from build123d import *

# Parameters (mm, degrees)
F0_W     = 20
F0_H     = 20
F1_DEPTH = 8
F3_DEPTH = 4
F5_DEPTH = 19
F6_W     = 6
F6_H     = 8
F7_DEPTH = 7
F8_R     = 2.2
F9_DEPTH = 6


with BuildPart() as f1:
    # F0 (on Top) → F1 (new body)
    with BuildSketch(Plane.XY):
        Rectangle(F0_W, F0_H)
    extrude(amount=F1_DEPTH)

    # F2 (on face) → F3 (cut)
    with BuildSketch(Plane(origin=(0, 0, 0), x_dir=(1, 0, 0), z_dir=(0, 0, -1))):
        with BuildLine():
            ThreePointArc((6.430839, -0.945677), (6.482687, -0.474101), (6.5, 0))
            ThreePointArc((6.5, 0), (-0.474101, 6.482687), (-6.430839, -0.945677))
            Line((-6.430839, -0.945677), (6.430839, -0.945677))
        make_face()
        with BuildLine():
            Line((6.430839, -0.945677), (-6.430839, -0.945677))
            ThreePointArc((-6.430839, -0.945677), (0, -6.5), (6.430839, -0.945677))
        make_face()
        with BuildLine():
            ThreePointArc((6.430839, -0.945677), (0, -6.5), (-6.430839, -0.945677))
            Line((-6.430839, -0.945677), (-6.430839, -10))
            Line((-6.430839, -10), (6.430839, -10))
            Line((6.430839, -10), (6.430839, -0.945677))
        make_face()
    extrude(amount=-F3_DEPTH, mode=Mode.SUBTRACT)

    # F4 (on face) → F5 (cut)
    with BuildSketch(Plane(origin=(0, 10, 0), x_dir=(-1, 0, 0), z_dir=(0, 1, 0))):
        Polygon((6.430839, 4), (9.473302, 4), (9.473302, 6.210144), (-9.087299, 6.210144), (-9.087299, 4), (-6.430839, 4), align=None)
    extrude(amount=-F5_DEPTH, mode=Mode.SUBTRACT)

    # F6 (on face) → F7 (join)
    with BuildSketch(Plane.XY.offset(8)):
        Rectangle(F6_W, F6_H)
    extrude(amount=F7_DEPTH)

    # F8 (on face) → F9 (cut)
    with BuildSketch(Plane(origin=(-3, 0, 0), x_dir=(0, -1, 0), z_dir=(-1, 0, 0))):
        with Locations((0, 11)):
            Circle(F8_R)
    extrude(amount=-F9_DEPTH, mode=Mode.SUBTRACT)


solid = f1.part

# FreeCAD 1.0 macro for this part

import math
import FreeCAD as App
import Part
import Sketcher

V = App.Vector


def add_polygon(sketch, points):
    """Adds a closed chain of lines whose ends are joined by coincident constraints."""
    first, n = sketch.GeometryCount, len(points)
    for a, b in zip(points, points[1:] + points[:1]):
        sketch.addGeometry(Part.LineSegment(App.Vector(*a, 0), App.Vector(*b, 0)), False)
    for i in range(n):
        sketch.addConstraint(Sketcher.Constraint("Coincident", first + i, 2, first + (i + 1) % n, 1))

doc = App.newDocument("Part")
body = doc.addObject("PartDesign::Body", "Body")

# Sketch on XY plane
sketch1 = body.newObject("Sketcher::SketchObject", "Sketch")
sketch1.AttachmentSupport = (doc.getObject("XY_Plane"), [""])
sketch1.MapMode = "FlatFace"
add_polygon(sketch1, [(-10, 10), (-10, -10), (10, -10), (10, 10)])  # lines 0-3
sketch1.addConstraint([
    Sketcher.Constraint("Vertical", 0),
    Sketcher.Constraint("Horizontal", 1),
    Sketcher.Constraint("Vertical", 2),
    Sketcher.Constraint("Horizontal", 3),
    Sketcher.Constraint("Symmetric", 0, 2, 2, 2, -1, 1),
    Sketcher.Constraint("Equal", 3, 0),
    Sketcher.Constraint("DistanceX", 1, 1, 1, 2, 20.0),
])
pad1 = body.newObject("PartDesign::Pad", "Pad")
pad1.Profile = sketch1
pad1.Length = 8

# Sketch on XY plane
sketch2 = body.newObject("Sketcher::SketchObject", "Sketch001")
sketch2.AttachmentSupport = (doc.getObject("XY_Plane"), [""])
sketch2.MapMode = "FlatFace"
sketch2.addGeometry([
    Part.ArcOfCircle(Part.Circle(V(0.000141, 0.000008, 0), V(0, 0, 1), 6.499859), math.radians(-0.000069), math.radians(8.365697)),  # 0
    Part.ArcOfCircle(Part.Circle(V(0, 0, 0), V(0, 0, 1), 6.5), math.radians(171.634413), math.radians(360.000003)),  # 1
    Part.LineSegment(V(-6.430839, 0.945677, 0), V(-6.430839, 10, 0)),  # 2
    Part.LineSegment(V(-6.430839, 10, 0), V(6.430839, 10, 0)),  # 3
    Part.LineSegment(V(6.430839, 10, 0), V(6.430839, 0.945677, 0)),  # 4
], False)
sketch2.addConstraint([
    Sketcher.Constraint("Coincident", 0, 1, 1, 2),
    Sketcher.Constraint("Coincident", 1, 1, 2, 1),
    Sketcher.Constraint("Coincident", 2, 2, 3, 1),
    Sketcher.Constraint("Coincident", 3, 2, 4, 1),
    Sketcher.Constraint("Coincident", 4, 2, 0, 2),
    Sketcher.Constraint("Vertical", 2),
    Sketcher.Constraint("Horizontal", 3),
    Sketcher.Constraint("Vertical", 4),
    Sketcher.Constraint("Coincident", 1, 3, -1, 1),
    Sketcher.Constraint("PointOnObject", 0, 1, -1),
    Sketcher.Constraint("Radius", 1, 6.5),
    Sketcher.Constraint("DistanceY", -1, 1, 2, 2, 10.0),
    Sketcher.Constraint("Radius", 0, 6.499859),
    Sketcher.Constraint("DistanceX", 0, 3, 3, 2, 6.430698),
    Sketcher.Constraint("DistanceX", 3, 1, 3, 2, 12.861678),
    Sketcher.Constraint("DistanceY", 4, 2, 4, 1, 9.054323),
])
pocket1 = body.newObject("PartDesign::Pocket", "Pocket")
pocket1.Profile = sketch2
pocket1.Length = 4
pocket1.Reversed = True

# Sketch on XZ plane
sketch3 = body.newObject("Sketcher::SketchObject", "Sketch002")
sketch3.AttachmentSupport = (doc.getObject("XZ_Plane"), [""])
sketch3.MapMode = "FlatFace"
sketch3.AttachmentOffset = App.Placement(V(0, 0, -10), App.Rotation())
add_polygon(sketch3, [(-9.5, 4), (-9.5, 6.2), (9.1, 6.2), (9.1, 4)])  # lines 0-3
sketch3.addConstraint([
    Sketcher.Constraint("Vertical", 0),
    Sketcher.Constraint("Horizontal", 1),
    Sketcher.Constraint("Vertical", 2),
    Sketcher.Constraint("Horizontal", 3),
    Sketcher.Constraint("DistanceY", -1, 1, 2, 2, 4.0),
    Sketcher.Constraint("DistanceX", 1, 1, 1, 2, 18.560601),
    Sketcher.Constraint("DistanceX", -1, 1, 1, 2, 9.087299),
    Sketcher.Constraint("DistanceY", 0, 1, 0, 2, 2.210144),
])
pocket2 = body.newObject("PartDesign::Pocket", "Pocket001")
pocket2.Profile = sketch3
pocket2.Length = 19
pocket2.Reversed = True

# Sketch on XY plane
sketch4 = body.newObject("Sketcher::SketchObject", "Sketch003")
sketch4.AttachmentSupport = (doc.getObject("XY_Plane"), [""])
sketch4.MapMode = "FlatFace"
sketch4.AttachmentOffset = App.Placement(V(0, 0, 8), App.Rotation())
add_polygon(sketch4, [(-3, 4), (-3, -4), (3, -4), (3, 4)])  # lines 0-3
sketch4.addConstraint([
    Sketcher.Constraint("Vertical", 0),
    Sketcher.Constraint("Horizontal", 1),
    Sketcher.Constraint("Vertical", 2),
    Sketcher.Constraint("Horizontal", 3),
    Sketcher.Constraint("Symmetric", 0, 2, 2, 2, -1, 1),
    Sketcher.Constraint("DistanceX", 1, 1, 1, 2, 6.0),
    Sketcher.Constraint("DistanceY", 0, 2, 0, 1, 8.0),
])
pad2 = body.newObject("PartDesign::Pad", "Pad001")
pad2.Profile = sketch4
pad2.Length = 7

# Sketch on YZ plane
sketch5 = body.newObject("Sketcher::SketchObject", "Sketch004")
sketch5.AttachmentSupport = (doc.getObject("YZ_Plane"), [""])
sketch5.MapMode = "FlatFace"
sketch5.AttachmentOffset = App.Placement(V(0, 0, -3), App.Rotation())
sketch5.addGeometry(Part.Circle(V(0, 11, 0), V(0, 0, 1), 2.2), False)
sketch5.addConstraint([
    Sketcher.Constraint("PointOnObject", 0, 3, -2),
    Sketcher.Constraint("Diameter", 0, 4.4),
    Sketcher.Constraint("DistanceY", -1, 1, 0, 3, 11.0),
])
pocket3 = body.newObject("PartDesign::Pocket", "Pocket002")
pocket3.Profile = sketch5
pocket3.Length = 6
pocket3.Reversed = True

doc.recompute()
